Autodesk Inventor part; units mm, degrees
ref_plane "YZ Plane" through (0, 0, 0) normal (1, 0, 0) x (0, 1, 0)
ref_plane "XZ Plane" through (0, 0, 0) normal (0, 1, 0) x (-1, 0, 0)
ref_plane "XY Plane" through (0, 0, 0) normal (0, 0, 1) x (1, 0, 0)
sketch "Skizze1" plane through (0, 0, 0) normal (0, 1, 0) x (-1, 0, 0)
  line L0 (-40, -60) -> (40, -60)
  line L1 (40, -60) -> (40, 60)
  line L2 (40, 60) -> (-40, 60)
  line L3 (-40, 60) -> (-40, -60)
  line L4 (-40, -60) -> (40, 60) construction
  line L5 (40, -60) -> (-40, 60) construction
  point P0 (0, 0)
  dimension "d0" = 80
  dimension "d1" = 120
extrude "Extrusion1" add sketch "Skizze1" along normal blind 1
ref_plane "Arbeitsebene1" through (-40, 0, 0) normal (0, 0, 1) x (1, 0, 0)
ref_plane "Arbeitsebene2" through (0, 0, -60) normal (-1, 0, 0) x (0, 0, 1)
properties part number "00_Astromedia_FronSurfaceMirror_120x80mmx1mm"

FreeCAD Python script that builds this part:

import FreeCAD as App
import Part
import Sketcher

V = App.Vector

doc = App.newDocument("Part")
body = doc.addObject("PartDesign::Body", "Body")

# Sketch on XZ plane
sketch1 = body.newObject("Sketcher::SketchObject", "Sketch")
sketch1.AttachmentSupport = (doc.getObject("XZ_Plane"), [""])
sketch1.MapMode = "FlatFace"
sketch1.addGeometry(Part.LineSegment(V(40, 60, 0), V(40, -60, 0)), False)
sketch1.addGeometry(Part.LineSegment(V(40, -60, 0), V(-40, -60, 0)), False)
sketch1.addGeometry(Part.LineSegment(V(-40, -60, 0), V(-40, 60, 0)), False)
sketch1.addGeometry(Part.LineSegment(V(-40, 60, 0), V(40, 60, 0)), False)
sketch1.addConstraint(Sketcher.Constraint("Coincident", 0, 2, 1, 1))
sketch1.addConstraint(Sketcher.Constraint("Coincident", 1, 2, 2, 1))
sketch1.addConstraint(Sketcher.Constraint("Coincident", 2, 2, 3, 1))
sketch1.addConstraint(Sketcher.Constraint("Coincident", 3, 2, 0, 1))
sketch1.addConstraint(Sketcher.Constraint("Vertical", 0))
sketch1.addConstraint(Sketcher.Constraint("Horizontal", 1))
sketch1.addConstraint(Sketcher.Constraint("Vertical", 2))
sketch1.addConstraint(Sketcher.Constraint("Horizontal", 3))
sketch1.addConstraint(Sketcher.Constraint("Symmetric", 0, 2, 2, 2, -1, 1))
sketch1.addConstraint(Sketcher.Constraint("DistanceX", 1, 2, 1, 1, 80.0))
sketch1.addConstraint(Sketcher.Constraint("DistanceY", 0, 2, 0, 1, 120.0))
pad1 = body.newObject("PartDesign::Pad", "Pad")
pad1.Profile = sketch1
pad1.Length = 1
pad1.Reversed = True

doc.recompute()
